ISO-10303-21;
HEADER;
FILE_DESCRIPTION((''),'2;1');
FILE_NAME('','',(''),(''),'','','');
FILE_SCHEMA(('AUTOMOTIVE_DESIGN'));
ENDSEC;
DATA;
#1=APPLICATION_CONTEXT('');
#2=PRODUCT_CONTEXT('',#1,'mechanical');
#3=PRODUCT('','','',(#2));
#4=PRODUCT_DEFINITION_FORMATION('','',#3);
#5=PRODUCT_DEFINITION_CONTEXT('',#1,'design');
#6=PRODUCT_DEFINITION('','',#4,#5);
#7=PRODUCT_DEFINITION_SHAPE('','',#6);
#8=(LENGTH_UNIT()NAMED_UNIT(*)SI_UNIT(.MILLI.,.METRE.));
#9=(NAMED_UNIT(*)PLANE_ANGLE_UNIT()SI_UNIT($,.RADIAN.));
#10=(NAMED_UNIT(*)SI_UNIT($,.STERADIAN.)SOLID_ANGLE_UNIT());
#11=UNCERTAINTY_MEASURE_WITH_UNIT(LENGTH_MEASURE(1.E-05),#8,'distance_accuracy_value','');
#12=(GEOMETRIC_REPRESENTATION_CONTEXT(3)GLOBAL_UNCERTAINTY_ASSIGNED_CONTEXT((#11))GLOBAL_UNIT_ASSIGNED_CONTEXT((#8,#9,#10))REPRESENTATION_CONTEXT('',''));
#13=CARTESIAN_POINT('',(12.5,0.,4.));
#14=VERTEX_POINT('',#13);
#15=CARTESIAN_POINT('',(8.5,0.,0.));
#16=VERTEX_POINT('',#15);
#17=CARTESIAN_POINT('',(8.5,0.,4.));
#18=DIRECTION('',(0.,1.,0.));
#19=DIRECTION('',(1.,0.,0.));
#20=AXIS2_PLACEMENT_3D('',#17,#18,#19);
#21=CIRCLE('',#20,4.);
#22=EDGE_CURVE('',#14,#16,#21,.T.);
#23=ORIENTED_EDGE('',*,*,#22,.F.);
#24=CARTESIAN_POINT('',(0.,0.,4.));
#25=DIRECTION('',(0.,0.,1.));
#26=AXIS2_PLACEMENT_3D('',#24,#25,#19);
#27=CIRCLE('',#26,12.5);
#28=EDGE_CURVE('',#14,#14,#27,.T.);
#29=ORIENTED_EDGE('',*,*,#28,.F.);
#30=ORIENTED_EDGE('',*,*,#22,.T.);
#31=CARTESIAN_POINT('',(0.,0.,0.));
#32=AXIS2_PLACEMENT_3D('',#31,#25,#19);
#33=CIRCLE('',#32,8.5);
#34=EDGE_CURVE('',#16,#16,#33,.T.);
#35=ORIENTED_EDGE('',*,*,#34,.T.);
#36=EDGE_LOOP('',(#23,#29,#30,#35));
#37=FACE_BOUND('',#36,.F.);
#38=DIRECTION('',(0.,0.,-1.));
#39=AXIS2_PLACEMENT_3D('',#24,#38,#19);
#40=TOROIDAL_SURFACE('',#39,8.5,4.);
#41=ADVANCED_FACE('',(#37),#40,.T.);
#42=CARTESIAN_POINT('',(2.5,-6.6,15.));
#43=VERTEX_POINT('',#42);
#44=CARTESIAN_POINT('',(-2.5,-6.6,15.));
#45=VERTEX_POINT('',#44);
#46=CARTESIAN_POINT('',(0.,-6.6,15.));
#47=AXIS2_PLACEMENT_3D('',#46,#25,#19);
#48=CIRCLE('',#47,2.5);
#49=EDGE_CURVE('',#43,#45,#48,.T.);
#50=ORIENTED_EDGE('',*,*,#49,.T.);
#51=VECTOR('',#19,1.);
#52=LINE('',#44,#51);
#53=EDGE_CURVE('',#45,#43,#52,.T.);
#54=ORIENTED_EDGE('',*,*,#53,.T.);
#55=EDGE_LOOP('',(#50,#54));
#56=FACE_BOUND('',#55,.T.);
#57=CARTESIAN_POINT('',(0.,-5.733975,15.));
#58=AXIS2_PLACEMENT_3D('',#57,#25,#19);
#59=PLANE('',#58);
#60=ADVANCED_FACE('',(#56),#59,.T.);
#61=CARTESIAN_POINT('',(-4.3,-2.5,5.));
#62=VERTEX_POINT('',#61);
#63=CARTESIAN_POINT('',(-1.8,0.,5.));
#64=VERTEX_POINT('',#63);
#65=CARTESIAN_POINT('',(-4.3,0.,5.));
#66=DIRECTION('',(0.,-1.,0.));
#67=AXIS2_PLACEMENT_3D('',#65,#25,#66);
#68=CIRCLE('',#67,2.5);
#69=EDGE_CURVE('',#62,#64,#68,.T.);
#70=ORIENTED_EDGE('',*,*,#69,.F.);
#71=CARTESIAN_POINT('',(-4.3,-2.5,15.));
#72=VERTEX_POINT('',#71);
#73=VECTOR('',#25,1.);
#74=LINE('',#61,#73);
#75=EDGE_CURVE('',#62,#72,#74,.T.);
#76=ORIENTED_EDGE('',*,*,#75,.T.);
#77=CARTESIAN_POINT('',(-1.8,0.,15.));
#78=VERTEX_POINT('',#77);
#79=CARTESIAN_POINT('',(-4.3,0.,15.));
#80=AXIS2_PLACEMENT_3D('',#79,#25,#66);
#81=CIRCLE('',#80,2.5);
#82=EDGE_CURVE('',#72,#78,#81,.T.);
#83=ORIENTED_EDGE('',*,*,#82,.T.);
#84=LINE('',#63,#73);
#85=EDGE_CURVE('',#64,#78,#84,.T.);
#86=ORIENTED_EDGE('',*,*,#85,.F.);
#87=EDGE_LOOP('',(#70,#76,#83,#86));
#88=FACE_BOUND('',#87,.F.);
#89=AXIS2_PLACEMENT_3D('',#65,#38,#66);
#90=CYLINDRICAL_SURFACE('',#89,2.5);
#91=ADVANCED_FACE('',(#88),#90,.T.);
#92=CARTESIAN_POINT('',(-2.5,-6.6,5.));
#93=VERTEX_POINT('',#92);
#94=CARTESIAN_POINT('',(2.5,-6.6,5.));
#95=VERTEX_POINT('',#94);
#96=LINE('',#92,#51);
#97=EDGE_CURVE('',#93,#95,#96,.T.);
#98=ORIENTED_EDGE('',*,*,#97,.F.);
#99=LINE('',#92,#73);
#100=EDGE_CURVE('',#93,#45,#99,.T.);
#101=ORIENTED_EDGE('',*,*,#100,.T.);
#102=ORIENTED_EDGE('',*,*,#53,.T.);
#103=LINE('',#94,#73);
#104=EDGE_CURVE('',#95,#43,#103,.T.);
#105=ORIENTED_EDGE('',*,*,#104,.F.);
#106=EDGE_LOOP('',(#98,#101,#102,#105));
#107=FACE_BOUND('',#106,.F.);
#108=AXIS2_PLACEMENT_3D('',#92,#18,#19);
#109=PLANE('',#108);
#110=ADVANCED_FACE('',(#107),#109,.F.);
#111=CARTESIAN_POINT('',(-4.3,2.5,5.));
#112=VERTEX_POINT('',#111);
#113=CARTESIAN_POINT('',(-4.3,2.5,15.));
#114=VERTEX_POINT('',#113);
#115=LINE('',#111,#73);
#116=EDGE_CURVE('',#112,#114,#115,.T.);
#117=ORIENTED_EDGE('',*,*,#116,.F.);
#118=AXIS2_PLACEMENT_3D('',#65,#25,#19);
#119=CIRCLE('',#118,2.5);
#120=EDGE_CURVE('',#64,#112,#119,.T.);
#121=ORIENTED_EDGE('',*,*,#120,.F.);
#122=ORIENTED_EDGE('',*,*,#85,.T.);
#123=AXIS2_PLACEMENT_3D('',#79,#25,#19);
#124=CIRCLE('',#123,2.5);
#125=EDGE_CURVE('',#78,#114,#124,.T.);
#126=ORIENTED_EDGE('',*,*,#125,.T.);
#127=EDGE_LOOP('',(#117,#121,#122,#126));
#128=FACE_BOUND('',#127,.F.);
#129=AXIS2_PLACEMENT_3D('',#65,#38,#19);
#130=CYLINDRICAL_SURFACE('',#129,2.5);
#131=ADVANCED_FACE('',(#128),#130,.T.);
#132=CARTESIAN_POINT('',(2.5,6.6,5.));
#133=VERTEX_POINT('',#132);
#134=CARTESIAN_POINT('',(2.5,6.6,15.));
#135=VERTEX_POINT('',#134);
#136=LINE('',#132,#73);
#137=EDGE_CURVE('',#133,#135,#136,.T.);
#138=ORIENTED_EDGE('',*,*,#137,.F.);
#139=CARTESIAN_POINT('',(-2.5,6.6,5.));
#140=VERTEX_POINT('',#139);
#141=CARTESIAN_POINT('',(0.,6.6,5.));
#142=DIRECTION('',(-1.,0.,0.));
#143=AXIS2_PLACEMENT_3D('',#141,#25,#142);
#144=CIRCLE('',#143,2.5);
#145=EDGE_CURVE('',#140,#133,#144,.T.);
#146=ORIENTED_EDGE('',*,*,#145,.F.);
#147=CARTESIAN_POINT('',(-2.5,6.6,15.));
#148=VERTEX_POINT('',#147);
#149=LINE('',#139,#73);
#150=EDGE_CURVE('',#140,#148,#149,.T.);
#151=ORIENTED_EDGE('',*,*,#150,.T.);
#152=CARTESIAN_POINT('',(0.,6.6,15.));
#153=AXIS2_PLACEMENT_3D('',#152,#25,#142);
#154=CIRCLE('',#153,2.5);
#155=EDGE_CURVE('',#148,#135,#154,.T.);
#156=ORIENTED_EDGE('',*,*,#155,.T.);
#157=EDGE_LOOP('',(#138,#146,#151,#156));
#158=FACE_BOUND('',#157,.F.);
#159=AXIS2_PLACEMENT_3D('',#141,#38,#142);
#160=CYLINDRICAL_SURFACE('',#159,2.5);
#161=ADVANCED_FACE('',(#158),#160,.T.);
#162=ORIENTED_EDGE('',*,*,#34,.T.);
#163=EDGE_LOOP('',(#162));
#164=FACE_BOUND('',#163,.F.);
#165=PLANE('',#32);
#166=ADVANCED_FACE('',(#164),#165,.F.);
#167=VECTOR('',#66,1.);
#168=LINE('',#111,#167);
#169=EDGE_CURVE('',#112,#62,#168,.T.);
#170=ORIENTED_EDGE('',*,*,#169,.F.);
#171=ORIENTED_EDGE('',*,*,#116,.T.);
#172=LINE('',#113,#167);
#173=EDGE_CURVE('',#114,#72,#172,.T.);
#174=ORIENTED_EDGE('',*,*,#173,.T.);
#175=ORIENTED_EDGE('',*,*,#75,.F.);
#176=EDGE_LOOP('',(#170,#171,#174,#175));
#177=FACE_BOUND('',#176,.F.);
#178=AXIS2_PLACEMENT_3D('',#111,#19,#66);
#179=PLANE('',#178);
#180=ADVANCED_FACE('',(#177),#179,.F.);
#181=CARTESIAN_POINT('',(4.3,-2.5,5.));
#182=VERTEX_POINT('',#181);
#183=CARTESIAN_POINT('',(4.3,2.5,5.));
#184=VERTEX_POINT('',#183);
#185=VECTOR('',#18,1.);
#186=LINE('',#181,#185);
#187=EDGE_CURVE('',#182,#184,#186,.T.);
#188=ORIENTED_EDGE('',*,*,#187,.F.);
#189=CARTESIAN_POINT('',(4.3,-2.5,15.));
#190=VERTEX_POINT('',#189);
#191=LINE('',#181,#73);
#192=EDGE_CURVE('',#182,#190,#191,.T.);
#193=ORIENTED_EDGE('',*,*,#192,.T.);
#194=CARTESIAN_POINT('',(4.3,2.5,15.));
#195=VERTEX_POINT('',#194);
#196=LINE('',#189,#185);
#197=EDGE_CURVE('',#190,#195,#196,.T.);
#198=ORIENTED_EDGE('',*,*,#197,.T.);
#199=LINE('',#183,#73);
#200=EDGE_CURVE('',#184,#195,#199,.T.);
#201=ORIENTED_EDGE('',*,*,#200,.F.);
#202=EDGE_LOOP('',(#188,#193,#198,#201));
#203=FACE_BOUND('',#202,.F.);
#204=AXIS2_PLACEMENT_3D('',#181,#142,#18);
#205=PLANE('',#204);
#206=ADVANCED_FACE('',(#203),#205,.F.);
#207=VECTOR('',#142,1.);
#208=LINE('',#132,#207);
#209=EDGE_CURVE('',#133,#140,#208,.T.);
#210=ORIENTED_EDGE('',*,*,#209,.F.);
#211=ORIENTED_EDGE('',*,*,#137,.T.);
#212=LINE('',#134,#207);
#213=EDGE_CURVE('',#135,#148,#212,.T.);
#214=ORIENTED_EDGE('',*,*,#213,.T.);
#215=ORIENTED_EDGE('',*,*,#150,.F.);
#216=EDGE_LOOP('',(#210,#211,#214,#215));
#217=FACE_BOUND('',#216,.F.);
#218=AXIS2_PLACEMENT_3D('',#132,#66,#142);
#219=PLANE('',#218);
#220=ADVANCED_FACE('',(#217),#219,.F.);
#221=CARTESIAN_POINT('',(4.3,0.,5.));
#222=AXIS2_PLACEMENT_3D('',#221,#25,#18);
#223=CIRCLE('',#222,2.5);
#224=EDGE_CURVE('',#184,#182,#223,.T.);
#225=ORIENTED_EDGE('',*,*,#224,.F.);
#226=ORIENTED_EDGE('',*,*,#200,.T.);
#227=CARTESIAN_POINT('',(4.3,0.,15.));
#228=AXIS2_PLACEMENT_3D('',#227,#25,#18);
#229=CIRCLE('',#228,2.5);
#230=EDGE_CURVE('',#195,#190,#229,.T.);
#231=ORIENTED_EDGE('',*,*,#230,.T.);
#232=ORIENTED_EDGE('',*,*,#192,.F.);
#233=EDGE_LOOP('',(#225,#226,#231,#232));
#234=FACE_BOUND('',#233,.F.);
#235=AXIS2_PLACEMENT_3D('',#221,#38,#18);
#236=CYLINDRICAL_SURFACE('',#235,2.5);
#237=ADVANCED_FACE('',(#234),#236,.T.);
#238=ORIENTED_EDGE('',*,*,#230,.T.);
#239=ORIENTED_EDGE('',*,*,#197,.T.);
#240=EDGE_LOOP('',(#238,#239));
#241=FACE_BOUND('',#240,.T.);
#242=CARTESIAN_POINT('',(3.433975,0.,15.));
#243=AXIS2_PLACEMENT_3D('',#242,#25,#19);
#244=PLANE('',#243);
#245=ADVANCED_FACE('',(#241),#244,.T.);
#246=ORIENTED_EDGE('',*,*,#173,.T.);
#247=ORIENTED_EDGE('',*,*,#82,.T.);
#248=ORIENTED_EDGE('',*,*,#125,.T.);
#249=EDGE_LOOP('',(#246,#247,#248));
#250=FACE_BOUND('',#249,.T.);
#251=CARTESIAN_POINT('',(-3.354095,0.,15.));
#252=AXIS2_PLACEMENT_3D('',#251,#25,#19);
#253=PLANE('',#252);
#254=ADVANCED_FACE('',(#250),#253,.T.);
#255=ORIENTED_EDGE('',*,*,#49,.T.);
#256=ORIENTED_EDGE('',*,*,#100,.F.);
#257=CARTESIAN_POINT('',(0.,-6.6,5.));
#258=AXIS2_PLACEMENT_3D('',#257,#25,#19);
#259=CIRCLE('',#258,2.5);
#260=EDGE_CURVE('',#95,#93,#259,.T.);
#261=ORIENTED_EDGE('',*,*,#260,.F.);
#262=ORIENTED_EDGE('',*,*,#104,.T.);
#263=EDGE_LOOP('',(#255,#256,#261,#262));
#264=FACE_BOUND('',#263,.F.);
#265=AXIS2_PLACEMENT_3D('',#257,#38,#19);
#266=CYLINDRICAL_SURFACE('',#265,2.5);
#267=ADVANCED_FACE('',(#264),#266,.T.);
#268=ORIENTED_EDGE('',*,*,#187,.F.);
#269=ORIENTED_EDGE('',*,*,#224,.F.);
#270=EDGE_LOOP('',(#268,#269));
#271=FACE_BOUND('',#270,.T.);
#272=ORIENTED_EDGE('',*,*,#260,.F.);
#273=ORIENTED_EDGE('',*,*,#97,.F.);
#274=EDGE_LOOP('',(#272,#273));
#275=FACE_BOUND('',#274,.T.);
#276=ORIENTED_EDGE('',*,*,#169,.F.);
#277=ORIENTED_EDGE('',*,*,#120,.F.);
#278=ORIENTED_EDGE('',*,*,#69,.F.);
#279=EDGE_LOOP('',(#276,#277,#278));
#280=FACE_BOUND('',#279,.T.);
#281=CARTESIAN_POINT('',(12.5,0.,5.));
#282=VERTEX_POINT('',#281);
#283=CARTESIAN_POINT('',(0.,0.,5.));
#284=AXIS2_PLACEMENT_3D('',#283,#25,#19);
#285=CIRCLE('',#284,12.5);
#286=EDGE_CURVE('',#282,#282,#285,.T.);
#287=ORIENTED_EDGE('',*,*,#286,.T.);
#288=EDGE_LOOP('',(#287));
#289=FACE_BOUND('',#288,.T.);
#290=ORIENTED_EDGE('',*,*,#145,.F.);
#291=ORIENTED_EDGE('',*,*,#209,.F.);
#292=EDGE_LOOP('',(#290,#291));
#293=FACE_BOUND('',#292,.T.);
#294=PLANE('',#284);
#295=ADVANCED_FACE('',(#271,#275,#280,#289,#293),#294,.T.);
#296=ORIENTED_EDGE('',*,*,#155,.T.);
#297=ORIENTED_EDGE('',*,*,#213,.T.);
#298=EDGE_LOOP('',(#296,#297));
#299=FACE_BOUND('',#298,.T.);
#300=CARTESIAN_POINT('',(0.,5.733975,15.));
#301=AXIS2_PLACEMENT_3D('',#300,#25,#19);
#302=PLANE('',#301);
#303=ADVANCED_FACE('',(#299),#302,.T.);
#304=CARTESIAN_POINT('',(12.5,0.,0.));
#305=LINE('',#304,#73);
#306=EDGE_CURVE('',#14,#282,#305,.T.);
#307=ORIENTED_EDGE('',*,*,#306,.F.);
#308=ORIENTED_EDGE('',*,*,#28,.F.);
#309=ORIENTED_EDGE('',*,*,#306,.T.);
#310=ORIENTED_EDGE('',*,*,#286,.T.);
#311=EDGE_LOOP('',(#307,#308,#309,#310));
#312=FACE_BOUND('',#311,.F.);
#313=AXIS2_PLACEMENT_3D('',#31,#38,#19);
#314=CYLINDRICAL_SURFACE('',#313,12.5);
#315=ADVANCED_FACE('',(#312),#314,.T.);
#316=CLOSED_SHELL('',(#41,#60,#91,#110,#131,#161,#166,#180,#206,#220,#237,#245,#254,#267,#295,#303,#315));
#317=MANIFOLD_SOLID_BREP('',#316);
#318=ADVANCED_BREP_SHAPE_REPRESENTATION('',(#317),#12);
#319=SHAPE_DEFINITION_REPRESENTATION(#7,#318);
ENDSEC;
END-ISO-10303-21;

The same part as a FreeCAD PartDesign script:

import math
import FreeCAD as App
import Part
import Sketcher
Q = App.Units.Quantity


def edges_at(feature, points):
    """Names of the edges that pass closest to the given points."""
    edges = feature.Shape.Edges
    near = lambda p: min(range(len(edges)), key=lambda i: edges[i].distToShape(Part.Vertex(*p))[0])
    return sorted({f"Edge{near(p) + 1}" for p in points})

doc = App.newDocument("Part")
params = doc.addObject("Spreadsheet::Sheet", "Params")
for row, (alias, value) in enumerate([
    ("sketch1_diameter", "25 mm"),
    ("pad1_length", "5 mm"),
    ("fillet_radius", "4 mm"),
    ("sketch2_radius", "2.5 mm"),
    ("pad2_length", "10 mm"),
], start=1):
    params.set(f"A{row}", alias)
    params.set(f"B{row}", "=" + value)
    params.setAlias(f"B{row}", alias)

body = doc.addObject("PartDesign::Body", "Body")

# Sketch on XY plane
sketch1 = body.newObject("Sketcher::SketchObject", "Sketch")
sketch1.AttachmentSupport = (doc.getObject("XY_Plane"), [""])
sketch1.MapMode = "FlatFace"
sketch1.addGeometry(Part.Circle(App.Vector(0, 0, 0), App.Vector(0, 0, 1), 12), False)
sketch1.addConstraint([
    Sketcher.Constraint("Coincident", 0, 3, -1, 1),
    Sketcher.Constraint("Diameter", 0, Q("25 mm")),
])
sketch1.setExpression("Constraints[1]", "Params.sketch1_diameter")
pad1 = body.newObject("PartDesign::Pad", "Pad")
pad1.Profile = sketch1
pad1.setExpression("Length", "Params.pad1_length")
doc.recompute()

fillet = body.newObject("PartDesign::Fillet", "Fillet")
fillet.Base = (pad1, edges_at(pad1, [(-12.5, 0, 0)]))
fillet.setExpression("Radius", "Params.fillet_radius")

# Sketch on XY plane
sketch2 = body.newObject("Sketcher::SketchObject", "Sketch001")
sketch2.AttachmentSupport = (doc.getObject("XY_Plane"), [""])
sketch2.MapMode = "FlatFace"
sketch2.AttachmentOffset = App.Placement(App.Vector(0, 0, 5), App.Rotation())
sketch2.addGeometry([
    Part.ArcOfCircle(Part.Circle(App.Vector(-4.3, 0, 0), App.Vector(0, 0, 1), 2.5), math.radians(0), math.radians(90)),  # 0
    Part.LineSegment(App.Vector(-4.3, 2.5, 0), App.Vector(-4.3, -2.5, 0)),  # 1
    Part.ArcOfCircle(Part.Circle(App.Vector(-4.3, 0, 0), App.Vector(0, 0, 1), 2.5), math.radians(-90), math.radians(0)),  # 2
    Part.ArcOfCircle(Part.Circle(App.Vector(0, 6.6, 0), App.Vector(0, 0, 1), 2.5), math.radians(180), math.radians(360)),  # 3
    Part.LineSegment(App.Vector(2.5, 6.6, 0), App.Vector(-2.5, 6.6, 0)),  # 4
    Part.LineSegment(App.Vector(-2.5, -6.6, 0), App.Vector(2.5, -6.6, 0)),  # 5
    Part.ArcOfCircle(Part.Circle(App.Vector(0, -6.6, 0), App.Vector(0, 0, 1), 2.5), math.radians(0), math.radians(180)),  # 6
    Part.LineSegment(App.Vector(4.3, -2.5, 0), App.Vector(4.3, 2.5, 0)),  # 7
    Part.ArcOfCircle(Part.Circle(App.Vector(4.3, 0, 0), App.Vector(0, 0, 1), 2.5), math.radians(90), math.radians(270)),  # 8
], False)
sketch2.addConstraint([
    Sketcher.Constraint("Coincident", 0, 2, 1, 1),
    Sketcher.Constraint("Coincident", 1, 2, 2, 1),
    Sketcher.Constraint("Tangent", 2, 2, 0, 1),
    Sketcher.Constraint("Coincident", 3, 1, 4, 2),
    Sketcher.Constraint("Coincident", 4, 1, 3, 2),
    Sketcher.Constraint("Coincident", 5, 1, 6, 2),
    Sketcher.Constraint("Coincident", 6, 1, 5, 2),
    Sketcher.Constraint("Coincident", 7, 1, 8, 2),
    Sketcher.Constraint("Coincident", 8, 1, 7, 2),
    Sketcher.Constraint("Vertical", 1),
    Sketcher.Constraint("Horizontal", 4),
    Sketcher.Constraint("Horizontal", 5),
    Sketcher.Constraint("Vertical", 7),
    Sketcher.Constraint("Equal", 0, 2),
    Sketcher.Constraint("Equal", 2, 3),
    Sketcher.Constraint("Equal", 3, 6),
    Sketcher.Constraint("Equal", 6, 8),
    Sketcher.Constraint("Symmetric", 3, 3, 6, 3, -1, 1),
    Sketcher.Constraint("Symmetric", 0, 3, 8, 3, -1, 1),
    Sketcher.Constraint("Symmetric", 1, 2, 7, 1, -2),
    Sketcher.Constraint("Symmetric", 3, 1, 5, 1, -1),
    Sketcher.Constraint("PointOnObject", 2, 2, -1),
    Sketcher.Constraint("Horizontal", 6, 3, 5, 1),
    Sketcher.Constraint("Vertical", 2, 3, 0, 2),
    Sketcher.Constraint("Radius", 0, Q("2.5 mm")),
    Sketcher.Constraint("DistanceX", 0, 3, -1, 1, Q("4.3 mm")),
    Sketcher.Constraint("DistanceY", -1, 1, 3, 3, Q("6.6 mm")),
])
sketch2.setExpression("Constraints[24]", "Params.sketch2_radius")
pad2 = body.newObject("PartDesign::Pad", "Pad001")
pad2.Profile = sketch2
pad2.setExpression("Length", "Params.pad2_length")

doc.recompute()
